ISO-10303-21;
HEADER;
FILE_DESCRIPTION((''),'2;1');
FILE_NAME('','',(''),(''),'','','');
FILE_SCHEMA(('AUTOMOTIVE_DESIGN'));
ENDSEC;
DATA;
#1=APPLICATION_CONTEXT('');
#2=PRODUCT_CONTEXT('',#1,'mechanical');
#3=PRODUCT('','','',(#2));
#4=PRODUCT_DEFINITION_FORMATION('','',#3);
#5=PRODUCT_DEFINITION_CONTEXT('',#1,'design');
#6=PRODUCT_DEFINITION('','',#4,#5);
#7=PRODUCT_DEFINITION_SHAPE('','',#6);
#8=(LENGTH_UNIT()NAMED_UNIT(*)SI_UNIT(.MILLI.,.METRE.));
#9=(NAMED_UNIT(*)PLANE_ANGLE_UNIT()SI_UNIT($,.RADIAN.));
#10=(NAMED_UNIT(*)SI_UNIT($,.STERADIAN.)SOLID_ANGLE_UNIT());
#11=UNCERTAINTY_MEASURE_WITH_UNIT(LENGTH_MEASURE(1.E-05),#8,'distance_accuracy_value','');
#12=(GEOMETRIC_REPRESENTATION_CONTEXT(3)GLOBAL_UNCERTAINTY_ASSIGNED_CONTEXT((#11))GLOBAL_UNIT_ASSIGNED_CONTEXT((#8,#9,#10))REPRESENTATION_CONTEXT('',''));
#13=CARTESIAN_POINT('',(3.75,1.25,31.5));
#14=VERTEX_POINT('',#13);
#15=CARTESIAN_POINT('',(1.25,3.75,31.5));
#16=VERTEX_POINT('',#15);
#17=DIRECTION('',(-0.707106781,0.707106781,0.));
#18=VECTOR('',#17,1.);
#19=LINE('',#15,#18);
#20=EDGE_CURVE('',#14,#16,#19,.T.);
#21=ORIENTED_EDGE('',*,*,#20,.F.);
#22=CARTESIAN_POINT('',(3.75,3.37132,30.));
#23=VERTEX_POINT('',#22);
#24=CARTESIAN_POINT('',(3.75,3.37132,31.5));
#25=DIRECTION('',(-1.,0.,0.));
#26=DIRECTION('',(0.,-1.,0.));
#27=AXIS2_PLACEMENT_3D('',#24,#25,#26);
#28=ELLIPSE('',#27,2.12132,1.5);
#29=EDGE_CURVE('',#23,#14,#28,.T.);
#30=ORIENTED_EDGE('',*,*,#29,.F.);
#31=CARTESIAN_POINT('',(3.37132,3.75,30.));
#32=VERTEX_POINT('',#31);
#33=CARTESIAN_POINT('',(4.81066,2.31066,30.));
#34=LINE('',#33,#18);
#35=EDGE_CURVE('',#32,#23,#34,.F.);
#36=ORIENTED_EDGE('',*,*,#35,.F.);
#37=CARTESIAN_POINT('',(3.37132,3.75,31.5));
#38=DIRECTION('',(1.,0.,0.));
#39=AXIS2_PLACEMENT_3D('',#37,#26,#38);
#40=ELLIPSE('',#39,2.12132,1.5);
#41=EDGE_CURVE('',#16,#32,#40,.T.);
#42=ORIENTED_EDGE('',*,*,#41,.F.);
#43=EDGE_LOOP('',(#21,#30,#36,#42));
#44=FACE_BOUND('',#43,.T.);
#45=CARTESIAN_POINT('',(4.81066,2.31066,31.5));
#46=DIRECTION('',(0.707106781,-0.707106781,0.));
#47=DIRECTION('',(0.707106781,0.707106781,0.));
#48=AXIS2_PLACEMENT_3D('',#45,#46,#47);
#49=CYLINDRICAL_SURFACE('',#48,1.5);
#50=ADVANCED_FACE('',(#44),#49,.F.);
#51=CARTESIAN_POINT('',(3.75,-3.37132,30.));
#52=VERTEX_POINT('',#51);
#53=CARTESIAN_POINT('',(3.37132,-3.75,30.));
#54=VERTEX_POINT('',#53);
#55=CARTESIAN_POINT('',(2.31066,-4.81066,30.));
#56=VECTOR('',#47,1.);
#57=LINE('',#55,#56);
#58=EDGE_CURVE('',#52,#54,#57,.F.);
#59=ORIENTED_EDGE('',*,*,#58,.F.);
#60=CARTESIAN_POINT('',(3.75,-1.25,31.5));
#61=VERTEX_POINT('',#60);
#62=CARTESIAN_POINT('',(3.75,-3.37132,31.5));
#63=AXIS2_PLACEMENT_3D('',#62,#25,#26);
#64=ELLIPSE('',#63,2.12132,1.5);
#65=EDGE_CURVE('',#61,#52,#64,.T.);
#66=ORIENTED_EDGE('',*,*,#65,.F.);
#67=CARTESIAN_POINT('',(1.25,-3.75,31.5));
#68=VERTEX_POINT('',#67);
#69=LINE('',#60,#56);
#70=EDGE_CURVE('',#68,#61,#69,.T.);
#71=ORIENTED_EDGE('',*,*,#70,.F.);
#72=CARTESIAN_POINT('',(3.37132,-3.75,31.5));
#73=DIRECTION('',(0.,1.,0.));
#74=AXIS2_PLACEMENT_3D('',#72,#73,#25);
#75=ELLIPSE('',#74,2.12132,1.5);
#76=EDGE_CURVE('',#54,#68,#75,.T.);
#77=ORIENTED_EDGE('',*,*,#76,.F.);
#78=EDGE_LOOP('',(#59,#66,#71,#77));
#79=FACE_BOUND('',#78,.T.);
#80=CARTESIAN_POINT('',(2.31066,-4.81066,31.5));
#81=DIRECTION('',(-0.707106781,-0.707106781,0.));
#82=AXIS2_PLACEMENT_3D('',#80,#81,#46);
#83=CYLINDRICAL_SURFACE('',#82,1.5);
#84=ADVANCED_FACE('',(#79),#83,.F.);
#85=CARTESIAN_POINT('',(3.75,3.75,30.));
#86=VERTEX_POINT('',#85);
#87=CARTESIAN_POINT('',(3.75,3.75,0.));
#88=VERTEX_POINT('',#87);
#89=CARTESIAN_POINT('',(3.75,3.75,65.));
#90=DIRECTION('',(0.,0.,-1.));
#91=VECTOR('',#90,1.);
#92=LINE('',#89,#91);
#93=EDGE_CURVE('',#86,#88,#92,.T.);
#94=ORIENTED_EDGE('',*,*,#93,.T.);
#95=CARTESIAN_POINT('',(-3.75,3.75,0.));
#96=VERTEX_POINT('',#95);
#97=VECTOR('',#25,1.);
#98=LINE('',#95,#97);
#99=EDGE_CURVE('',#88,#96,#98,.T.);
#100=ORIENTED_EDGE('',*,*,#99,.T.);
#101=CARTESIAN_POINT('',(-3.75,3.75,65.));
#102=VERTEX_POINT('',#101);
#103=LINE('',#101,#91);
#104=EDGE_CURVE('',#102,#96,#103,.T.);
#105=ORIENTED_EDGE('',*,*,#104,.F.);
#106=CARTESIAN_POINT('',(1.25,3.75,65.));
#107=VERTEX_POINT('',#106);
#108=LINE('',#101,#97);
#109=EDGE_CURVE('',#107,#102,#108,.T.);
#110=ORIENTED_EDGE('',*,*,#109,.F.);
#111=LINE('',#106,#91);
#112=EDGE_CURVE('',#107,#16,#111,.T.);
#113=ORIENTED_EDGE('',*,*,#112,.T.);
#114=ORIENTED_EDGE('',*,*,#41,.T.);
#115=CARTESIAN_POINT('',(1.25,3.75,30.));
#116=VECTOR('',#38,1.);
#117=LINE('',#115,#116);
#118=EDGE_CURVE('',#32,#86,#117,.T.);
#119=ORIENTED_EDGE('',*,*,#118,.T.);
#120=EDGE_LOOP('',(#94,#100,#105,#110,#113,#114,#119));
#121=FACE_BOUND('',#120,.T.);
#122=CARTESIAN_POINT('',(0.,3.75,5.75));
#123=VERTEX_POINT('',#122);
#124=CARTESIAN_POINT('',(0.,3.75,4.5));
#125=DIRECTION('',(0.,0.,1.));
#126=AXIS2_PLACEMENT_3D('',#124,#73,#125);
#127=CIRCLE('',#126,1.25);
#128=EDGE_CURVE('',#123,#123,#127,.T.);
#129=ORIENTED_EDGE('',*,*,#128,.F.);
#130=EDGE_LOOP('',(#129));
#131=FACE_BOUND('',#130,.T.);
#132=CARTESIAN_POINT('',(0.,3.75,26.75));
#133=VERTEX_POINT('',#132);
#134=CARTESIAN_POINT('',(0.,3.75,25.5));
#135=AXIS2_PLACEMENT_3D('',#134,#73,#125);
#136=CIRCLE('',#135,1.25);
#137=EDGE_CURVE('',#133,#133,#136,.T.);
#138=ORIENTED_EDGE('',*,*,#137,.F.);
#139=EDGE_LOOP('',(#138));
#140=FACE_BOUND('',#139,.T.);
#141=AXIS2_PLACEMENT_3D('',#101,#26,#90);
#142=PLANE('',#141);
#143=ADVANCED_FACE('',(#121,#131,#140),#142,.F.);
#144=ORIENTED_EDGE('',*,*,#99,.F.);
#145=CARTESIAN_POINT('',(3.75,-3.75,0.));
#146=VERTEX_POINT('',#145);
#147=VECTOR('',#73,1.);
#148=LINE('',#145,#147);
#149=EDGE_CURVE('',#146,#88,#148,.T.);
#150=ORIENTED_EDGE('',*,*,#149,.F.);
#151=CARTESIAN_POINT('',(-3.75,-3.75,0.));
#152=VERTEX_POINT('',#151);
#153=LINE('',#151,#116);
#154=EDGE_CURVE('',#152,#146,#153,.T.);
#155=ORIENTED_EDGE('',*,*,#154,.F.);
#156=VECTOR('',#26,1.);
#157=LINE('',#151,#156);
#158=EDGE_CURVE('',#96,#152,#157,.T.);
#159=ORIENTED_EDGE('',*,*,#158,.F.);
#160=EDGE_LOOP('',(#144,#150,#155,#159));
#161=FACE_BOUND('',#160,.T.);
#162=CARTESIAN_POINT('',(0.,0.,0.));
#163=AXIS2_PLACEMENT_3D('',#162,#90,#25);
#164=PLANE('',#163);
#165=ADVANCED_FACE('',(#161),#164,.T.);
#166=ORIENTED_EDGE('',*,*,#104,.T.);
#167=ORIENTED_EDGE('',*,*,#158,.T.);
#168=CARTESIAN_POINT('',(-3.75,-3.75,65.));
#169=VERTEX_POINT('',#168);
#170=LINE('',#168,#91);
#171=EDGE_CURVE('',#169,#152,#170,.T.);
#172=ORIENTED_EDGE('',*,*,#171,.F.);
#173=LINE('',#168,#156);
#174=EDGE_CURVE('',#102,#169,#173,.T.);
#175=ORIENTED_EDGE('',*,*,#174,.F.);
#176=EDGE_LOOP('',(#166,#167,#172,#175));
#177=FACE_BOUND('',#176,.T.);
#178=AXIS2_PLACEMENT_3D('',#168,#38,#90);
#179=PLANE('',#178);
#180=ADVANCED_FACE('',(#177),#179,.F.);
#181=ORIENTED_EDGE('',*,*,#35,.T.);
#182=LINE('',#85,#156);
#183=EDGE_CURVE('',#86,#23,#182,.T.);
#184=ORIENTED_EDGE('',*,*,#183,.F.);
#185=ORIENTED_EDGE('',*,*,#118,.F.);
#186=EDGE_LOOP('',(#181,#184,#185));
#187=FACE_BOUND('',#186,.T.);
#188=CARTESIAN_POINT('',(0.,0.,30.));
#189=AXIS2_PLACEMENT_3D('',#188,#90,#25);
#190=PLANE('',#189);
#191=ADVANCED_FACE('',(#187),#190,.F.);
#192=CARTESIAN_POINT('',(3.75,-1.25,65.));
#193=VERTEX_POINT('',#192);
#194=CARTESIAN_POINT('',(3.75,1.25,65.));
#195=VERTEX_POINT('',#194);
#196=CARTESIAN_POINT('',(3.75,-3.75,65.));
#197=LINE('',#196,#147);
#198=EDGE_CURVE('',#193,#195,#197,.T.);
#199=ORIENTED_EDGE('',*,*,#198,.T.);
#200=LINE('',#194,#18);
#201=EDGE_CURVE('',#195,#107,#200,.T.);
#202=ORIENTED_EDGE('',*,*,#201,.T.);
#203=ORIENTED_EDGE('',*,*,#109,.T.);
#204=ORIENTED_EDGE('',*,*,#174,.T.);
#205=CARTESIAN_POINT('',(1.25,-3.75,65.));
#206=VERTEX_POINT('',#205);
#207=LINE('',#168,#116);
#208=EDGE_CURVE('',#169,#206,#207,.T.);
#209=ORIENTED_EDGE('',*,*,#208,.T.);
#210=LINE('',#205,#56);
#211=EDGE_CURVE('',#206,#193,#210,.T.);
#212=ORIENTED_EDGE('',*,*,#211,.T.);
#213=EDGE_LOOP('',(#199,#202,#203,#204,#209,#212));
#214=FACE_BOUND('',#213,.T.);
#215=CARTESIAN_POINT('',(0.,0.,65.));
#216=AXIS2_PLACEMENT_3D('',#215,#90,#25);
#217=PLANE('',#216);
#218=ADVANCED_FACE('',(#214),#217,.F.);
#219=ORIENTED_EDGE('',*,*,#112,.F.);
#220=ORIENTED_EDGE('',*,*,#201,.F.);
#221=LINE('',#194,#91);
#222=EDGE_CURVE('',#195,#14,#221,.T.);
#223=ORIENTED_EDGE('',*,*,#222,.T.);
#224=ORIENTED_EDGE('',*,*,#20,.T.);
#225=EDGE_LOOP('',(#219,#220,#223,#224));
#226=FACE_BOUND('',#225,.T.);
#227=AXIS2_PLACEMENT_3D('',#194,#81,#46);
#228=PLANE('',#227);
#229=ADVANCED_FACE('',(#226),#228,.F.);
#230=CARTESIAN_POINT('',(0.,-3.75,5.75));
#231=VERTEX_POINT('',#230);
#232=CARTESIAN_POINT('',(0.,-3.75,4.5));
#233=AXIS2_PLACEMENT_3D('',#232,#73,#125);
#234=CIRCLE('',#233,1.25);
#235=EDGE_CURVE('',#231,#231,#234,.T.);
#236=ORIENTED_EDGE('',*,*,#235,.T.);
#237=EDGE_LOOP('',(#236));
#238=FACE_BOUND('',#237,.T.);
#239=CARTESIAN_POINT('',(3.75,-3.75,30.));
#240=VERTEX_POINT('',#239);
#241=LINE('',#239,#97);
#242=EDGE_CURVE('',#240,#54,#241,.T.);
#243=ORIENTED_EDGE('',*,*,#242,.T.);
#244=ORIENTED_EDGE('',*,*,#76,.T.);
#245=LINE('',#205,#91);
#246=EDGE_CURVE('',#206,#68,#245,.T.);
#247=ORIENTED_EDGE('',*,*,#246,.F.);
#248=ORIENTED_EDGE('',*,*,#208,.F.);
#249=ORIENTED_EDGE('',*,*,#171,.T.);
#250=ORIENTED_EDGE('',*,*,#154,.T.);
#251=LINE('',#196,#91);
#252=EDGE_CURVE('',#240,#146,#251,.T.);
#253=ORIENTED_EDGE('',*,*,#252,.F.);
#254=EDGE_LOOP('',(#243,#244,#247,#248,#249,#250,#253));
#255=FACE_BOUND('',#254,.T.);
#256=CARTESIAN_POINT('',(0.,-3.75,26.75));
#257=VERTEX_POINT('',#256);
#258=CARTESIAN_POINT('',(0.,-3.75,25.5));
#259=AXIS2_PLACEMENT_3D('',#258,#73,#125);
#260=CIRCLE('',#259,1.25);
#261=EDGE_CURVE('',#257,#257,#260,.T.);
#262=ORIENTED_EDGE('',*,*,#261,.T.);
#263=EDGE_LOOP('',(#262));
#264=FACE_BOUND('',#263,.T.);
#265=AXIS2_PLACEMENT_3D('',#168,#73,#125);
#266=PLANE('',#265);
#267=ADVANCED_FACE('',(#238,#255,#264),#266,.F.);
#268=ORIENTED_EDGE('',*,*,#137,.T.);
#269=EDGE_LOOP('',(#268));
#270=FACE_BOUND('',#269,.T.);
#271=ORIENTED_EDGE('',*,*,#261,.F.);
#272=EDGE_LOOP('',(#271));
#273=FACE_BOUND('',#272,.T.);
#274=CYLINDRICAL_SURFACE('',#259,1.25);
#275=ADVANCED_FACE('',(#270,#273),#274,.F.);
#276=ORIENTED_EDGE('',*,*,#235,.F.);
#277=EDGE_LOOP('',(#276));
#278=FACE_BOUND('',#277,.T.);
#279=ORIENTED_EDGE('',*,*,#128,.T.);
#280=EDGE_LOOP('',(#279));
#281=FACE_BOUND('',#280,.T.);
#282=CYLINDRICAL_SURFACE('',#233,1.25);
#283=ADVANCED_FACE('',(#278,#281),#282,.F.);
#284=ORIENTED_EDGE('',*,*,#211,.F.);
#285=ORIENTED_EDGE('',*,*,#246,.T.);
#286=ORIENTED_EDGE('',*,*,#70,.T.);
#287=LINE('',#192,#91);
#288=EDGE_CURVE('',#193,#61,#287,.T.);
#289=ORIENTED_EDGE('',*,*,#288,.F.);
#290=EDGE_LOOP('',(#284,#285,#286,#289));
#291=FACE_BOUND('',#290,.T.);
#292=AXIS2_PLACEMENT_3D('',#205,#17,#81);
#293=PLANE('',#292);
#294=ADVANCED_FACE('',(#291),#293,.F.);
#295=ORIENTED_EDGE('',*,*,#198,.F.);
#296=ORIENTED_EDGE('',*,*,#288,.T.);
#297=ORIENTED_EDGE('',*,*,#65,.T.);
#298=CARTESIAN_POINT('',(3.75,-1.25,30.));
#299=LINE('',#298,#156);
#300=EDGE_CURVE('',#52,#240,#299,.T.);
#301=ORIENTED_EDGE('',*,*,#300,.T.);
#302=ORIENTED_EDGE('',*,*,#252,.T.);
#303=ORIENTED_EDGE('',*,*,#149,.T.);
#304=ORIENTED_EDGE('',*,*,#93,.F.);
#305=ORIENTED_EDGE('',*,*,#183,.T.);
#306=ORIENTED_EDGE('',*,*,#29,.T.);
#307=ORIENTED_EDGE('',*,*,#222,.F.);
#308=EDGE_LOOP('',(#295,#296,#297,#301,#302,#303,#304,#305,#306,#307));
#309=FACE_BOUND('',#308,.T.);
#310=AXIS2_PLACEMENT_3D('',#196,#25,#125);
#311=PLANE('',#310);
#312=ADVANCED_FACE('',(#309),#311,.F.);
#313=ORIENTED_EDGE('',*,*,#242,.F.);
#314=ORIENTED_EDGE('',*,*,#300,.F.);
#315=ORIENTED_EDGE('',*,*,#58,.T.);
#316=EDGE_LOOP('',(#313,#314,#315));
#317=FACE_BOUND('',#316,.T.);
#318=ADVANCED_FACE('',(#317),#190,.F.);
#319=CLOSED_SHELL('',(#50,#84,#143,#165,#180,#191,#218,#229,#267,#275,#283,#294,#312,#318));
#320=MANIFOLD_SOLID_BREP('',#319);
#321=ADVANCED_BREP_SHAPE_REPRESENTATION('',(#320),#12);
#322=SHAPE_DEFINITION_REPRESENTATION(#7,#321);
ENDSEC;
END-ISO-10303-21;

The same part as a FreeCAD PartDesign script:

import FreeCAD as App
import Part
import Sketcher
from FreeCAD import Vector
Q = App.Units.Quantity


def edges_at(feature, points):
    """Names of the edges that pass closest to the given points."""
    edges = feature.Shape.Edges
    near = lambda p: min(range(len(edges)), key=lambda i: edges[i].distToShape(Part.Vertex(*p))[0])
    return sorted({f"Edge{near(p) + 1}" for p in points})


def add_polygon(sketch, points):
    """Adds a closed chain of lines whose ends are joined by coincident constraints."""
    first, n = sketch.GeometryCount, len(points)
    for a, b in zip(points, points[1:] + points[:1]):
        sketch.addGeometry(Part.LineSegment(App.Vector(*a, 0), App.Vector(*b, 0)), False)
    for i in range(n):
        sketch.addConstraint(Sketcher.Constraint("Coincident", first + i, 2, first + (i + 1) % n, 1))

doc = App.newDocument("Part")
params = doc.addObject("Spreadsheet::Sheet", "Params")
for row, (alias, value) in enumerate([
    ("sketch1_width", "7.5 mm"),
    ("pad1_length", "65 mm"),
    ("sketch2_diameter", "2.5 mm"),
    ("sketch3_width", "2.5 mm"),
    ("fillet_radius", "1.5 mm"),
], start=1):
    params.set(f"A{row}", alias)
    params.set(f"B{row}", "=" + value)
    params.setAlias(f"B{row}", alias)

body = doc.addObject("PartDesign::Body", "Body")

# Sketch on XY plane
sketch1 = doc.addObject("Sketcher::SketchObject", "Sketch")
body.addObject(sketch1)
sketch1.AttachmentSupport = (doc.XY_Plane, [""])
sketch1.MapMode = "FlatFace"
add_polygon(sketch1, [(-4, 4), (-4, -4), (4, -4), (4, 4)])  # lines 0-3
sketch1.addConstraint([
    Sketcher.Constraint("Vertical", 0),
    Sketcher.Constraint("Horizontal", 1),
    Sketcher.Constraint("Vertical", 2),
    Sketcher.Constraint("Horizontal", 3),
    Sketcher.Constraint("Symmetric", 0, 2, 2, 2, -1, 1),
    Sketcher.Constraint("Equal", 3, 0),
    Sketcher.Constraint("DistanceX", 1, 1, 1, 2, Q("7.5 mm")),
])
sketch1.setExpression("Constraints[10]", "Params.sketch1_width")
pad1 = doc.addObject("PartDesign::Pad", "Pad")
body.addObject(pad1)
pad1.Profile = sketch1
pad1.setExpression("Length", "Params.pad1_length")

# Sketch on XZ plane
sketch2 = doc.addObject("Sketcher::SketchObject", "Sketch001")
body.addObject(sketch2)
sketch2.AttachmentSupport = (doc.XZ_Plane, [""])
sketch2.MapMode = "FlatFace"
sketch2.AttachmentOffset = App.Placement(Vector(0, 0, -3.75), App.Rotation())
sketch2.addGeometry([
    Part.Circle(Vector(0, 4.5, 0), Vector(0, 0, 1), 1.2),
    Part.Circle(Vector(0, 25.5, 0), Vector(0, 0, 1), 1.2),
], False)
sketch2.addConstraint([
    Sketcher.Constraint("Equal", 0, 1),
    Sketcher.Constraint("PointOnObject", 0, 3, -2),
    Sketcher.Constraint("PointOnObject", 1, 3, -2),
    Sketcher.Constraint("Diameter", 0, Q("2.5 mm")),
    Sketcher.Constraint("DistanceY", 0, 3, 1, 3, Q("21 mm")),
    Sketcher.Constraint("DistanceY", -1, 1, 0, 3, Q("4.5 mm")),
])
sketch2.setExpression("Constraints[3]", "Params.sketch2_diameter")
pocket1 = doc.addObject("PartDesign::Pocket", "Pocket")
body.addObject(pocket1)
pocket1.Profile = sketch2
pocket1.Type = "ThroughAll"
pocket1.Reversed = True

# Sketch on XY plane
sketch3 = doc.addObject("Sketcher::SketchObject", "Sketch002")
body.addObject(sketch3)
sketch3.AttachmentSupport = (doc.XY_Plane, [""])
sketch3.MapMode = "FlatFace"
sketch3.AttachmentOffset = App.Placement(Vector(0, 0, 30), App.Rotation())
add_polygon(sketch3, [(1.2, 3.8), (3.8, 3.8), (3.8, 1.2)])  # lines 0-2
add_polygon(sketch3, [(3.8, -1.2), (3.8, -3.8), (1.2, -3.8)])  # lines 3-5
sketch3.addConstraint([
    Sketcher.Constraint("Horizontal", 0),
    Sketcher.Constraint("Vertical", 1),
    Sketcher.Constraint("Vertical", 3),
    Sketcher.Constraint("Horizontal", 4),
    Sketcher.Constraint("Symmetric", 0, 2, 3, 2, -1),
    Sketcher.Constraint("Perpendicular", 2, 5),
    Sketcher.Constraint("Vertical", 2, 2, 4, 2),
    Sketcher.Constraint("Equal", 4, 1),
    Sketcher.Constraint("DistanceX", 0, 1, 0, 2, Q("2.5 mm")),
    Sketcher.Constraint("DistanceY", 3, 2, 1, 2, Q("5 mm")),
    Sketcher.Constraint("DistanceX", -1, 1, 0, 2, Q("3.75 mm")),
])
sketch3.setExpression("Constraints[14]", "Params.sketch3_width")
pocket2 = doc.addObject("PartDesign::Pocket", "Pocket001")
body.addObject(pocket2)
pocket2.Profile = sketch3
pocket2.Type = "ThroughAll"
pocket2.Reversed = True
doc.recompute()

fillet = doc.addObject("PartDesign::Fillet", "Fillet")
body.addObject(fillet)
fillet.Base = (pocket2, edges_at(pocket2, [(2.5, 2.5, 30), (2.5, -2.5, 30)]))
fillet.setExpression("Radius", "Params.fillet_radius")

doc.recompute()
